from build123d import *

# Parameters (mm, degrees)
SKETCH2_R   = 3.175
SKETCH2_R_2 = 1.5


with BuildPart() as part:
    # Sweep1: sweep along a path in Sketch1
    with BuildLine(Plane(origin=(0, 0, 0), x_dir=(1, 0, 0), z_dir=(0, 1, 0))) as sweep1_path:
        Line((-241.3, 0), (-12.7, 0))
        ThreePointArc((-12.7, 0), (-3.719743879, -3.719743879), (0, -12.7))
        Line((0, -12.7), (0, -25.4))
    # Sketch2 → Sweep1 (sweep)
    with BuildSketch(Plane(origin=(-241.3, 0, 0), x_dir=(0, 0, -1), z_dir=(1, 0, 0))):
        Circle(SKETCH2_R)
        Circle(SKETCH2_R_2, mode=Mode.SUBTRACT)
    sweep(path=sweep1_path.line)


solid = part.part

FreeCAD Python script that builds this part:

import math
import FreeCAD as App
import Part
import Sketcher

V = App.Vector
Q = App.Units.Quantity

doc = App.newDocument("Part")
body = doc.addObject("PartDesign::Body", "Body")

# Sketch on YZ plane
sketch1 = body.newObject("Sketcher::SketchObject", "Sketch")
sketch1.AttachmentSupport = (doc.getObject("YZ_Plane"), [""])
sketch1.MapMode = "FlatFace"
sketch1.AttachmentOffset = App.Placement(V(0, 0, -9.5 * 25.4), App.Rotation())
sketch1.addGeometry([
    Part.Circle(V(0, 0, 0), V(0, 0, 1), 3.2),
    Part.Circle(V(0, 0, 0), V(0, 0, 1), 1.5),
], False)
sketch1.addConstraint([
    Sketcher.Constraint("Coincident", 0, 3, -1, 1),
    Sketcher.Constraint("Coincident", 1, 3, -1, 1),
    Sketcher.Constraint("Diameter", 0, Q("0.25 in")),
    Sketcher.Constraint("Diameter", 1, Q("3 mm")),
])

# Sketch on XZ plane
sketch2 = body.newObject("Sketcher::SketchObject", "Sketch001")
sketch2.AttachmentSupport = (doc.getObject("XZ_Plane"), [""])
sketch2.MapMode = "FlatFace"
sketch2.addGeometry([
    Part.LineSegment(V(-241, 0, 0), V(-13, 0, 0)),
    Part.ArcOfCircle(Part.Circle(V(-13, 13, 0), V(0, 0, 1), 13), math.radians(-90), math.radians(0)),
    Part.LineSegment(V(0, 13, 0), V(0, 25, 0)),
], False)
sketch2.addConstraint([
    Sketcher.Constraint("Tangent", 0, 2, 1, 1),
    Sketcher.Constraint("Tangent", 1, 2, 2, 1),
    Sketcher.Constraint("Horizontal", 0),
    Sketcher.Constraint("Vertical", 2),
    Sketcher.Constraint("PointOnObject", 0, 1, -1),
    Sketcher.Constraint("PointOnObject", 1, 2, -2),
    Sketcher.Constraint("Radius", 1, Q("0.5 in")),
    Sketcher.Constraint("DistanceX", 0, 1, 0, 2, Q("9 in")),
    Sketcher.Constraint("DistanceY", 2, 1, 2, 2, Q("0.5 in")),
])
doc.recompute()

additivepipe = body.newObject("PartDesign::AdditivePipe", "AdditivePipe")
additivepipe.Profile = sketch1
additivepipe.Spine = (sketch2, ["Edge1", "Edge2", "Edge3"])

doc.recompute()
